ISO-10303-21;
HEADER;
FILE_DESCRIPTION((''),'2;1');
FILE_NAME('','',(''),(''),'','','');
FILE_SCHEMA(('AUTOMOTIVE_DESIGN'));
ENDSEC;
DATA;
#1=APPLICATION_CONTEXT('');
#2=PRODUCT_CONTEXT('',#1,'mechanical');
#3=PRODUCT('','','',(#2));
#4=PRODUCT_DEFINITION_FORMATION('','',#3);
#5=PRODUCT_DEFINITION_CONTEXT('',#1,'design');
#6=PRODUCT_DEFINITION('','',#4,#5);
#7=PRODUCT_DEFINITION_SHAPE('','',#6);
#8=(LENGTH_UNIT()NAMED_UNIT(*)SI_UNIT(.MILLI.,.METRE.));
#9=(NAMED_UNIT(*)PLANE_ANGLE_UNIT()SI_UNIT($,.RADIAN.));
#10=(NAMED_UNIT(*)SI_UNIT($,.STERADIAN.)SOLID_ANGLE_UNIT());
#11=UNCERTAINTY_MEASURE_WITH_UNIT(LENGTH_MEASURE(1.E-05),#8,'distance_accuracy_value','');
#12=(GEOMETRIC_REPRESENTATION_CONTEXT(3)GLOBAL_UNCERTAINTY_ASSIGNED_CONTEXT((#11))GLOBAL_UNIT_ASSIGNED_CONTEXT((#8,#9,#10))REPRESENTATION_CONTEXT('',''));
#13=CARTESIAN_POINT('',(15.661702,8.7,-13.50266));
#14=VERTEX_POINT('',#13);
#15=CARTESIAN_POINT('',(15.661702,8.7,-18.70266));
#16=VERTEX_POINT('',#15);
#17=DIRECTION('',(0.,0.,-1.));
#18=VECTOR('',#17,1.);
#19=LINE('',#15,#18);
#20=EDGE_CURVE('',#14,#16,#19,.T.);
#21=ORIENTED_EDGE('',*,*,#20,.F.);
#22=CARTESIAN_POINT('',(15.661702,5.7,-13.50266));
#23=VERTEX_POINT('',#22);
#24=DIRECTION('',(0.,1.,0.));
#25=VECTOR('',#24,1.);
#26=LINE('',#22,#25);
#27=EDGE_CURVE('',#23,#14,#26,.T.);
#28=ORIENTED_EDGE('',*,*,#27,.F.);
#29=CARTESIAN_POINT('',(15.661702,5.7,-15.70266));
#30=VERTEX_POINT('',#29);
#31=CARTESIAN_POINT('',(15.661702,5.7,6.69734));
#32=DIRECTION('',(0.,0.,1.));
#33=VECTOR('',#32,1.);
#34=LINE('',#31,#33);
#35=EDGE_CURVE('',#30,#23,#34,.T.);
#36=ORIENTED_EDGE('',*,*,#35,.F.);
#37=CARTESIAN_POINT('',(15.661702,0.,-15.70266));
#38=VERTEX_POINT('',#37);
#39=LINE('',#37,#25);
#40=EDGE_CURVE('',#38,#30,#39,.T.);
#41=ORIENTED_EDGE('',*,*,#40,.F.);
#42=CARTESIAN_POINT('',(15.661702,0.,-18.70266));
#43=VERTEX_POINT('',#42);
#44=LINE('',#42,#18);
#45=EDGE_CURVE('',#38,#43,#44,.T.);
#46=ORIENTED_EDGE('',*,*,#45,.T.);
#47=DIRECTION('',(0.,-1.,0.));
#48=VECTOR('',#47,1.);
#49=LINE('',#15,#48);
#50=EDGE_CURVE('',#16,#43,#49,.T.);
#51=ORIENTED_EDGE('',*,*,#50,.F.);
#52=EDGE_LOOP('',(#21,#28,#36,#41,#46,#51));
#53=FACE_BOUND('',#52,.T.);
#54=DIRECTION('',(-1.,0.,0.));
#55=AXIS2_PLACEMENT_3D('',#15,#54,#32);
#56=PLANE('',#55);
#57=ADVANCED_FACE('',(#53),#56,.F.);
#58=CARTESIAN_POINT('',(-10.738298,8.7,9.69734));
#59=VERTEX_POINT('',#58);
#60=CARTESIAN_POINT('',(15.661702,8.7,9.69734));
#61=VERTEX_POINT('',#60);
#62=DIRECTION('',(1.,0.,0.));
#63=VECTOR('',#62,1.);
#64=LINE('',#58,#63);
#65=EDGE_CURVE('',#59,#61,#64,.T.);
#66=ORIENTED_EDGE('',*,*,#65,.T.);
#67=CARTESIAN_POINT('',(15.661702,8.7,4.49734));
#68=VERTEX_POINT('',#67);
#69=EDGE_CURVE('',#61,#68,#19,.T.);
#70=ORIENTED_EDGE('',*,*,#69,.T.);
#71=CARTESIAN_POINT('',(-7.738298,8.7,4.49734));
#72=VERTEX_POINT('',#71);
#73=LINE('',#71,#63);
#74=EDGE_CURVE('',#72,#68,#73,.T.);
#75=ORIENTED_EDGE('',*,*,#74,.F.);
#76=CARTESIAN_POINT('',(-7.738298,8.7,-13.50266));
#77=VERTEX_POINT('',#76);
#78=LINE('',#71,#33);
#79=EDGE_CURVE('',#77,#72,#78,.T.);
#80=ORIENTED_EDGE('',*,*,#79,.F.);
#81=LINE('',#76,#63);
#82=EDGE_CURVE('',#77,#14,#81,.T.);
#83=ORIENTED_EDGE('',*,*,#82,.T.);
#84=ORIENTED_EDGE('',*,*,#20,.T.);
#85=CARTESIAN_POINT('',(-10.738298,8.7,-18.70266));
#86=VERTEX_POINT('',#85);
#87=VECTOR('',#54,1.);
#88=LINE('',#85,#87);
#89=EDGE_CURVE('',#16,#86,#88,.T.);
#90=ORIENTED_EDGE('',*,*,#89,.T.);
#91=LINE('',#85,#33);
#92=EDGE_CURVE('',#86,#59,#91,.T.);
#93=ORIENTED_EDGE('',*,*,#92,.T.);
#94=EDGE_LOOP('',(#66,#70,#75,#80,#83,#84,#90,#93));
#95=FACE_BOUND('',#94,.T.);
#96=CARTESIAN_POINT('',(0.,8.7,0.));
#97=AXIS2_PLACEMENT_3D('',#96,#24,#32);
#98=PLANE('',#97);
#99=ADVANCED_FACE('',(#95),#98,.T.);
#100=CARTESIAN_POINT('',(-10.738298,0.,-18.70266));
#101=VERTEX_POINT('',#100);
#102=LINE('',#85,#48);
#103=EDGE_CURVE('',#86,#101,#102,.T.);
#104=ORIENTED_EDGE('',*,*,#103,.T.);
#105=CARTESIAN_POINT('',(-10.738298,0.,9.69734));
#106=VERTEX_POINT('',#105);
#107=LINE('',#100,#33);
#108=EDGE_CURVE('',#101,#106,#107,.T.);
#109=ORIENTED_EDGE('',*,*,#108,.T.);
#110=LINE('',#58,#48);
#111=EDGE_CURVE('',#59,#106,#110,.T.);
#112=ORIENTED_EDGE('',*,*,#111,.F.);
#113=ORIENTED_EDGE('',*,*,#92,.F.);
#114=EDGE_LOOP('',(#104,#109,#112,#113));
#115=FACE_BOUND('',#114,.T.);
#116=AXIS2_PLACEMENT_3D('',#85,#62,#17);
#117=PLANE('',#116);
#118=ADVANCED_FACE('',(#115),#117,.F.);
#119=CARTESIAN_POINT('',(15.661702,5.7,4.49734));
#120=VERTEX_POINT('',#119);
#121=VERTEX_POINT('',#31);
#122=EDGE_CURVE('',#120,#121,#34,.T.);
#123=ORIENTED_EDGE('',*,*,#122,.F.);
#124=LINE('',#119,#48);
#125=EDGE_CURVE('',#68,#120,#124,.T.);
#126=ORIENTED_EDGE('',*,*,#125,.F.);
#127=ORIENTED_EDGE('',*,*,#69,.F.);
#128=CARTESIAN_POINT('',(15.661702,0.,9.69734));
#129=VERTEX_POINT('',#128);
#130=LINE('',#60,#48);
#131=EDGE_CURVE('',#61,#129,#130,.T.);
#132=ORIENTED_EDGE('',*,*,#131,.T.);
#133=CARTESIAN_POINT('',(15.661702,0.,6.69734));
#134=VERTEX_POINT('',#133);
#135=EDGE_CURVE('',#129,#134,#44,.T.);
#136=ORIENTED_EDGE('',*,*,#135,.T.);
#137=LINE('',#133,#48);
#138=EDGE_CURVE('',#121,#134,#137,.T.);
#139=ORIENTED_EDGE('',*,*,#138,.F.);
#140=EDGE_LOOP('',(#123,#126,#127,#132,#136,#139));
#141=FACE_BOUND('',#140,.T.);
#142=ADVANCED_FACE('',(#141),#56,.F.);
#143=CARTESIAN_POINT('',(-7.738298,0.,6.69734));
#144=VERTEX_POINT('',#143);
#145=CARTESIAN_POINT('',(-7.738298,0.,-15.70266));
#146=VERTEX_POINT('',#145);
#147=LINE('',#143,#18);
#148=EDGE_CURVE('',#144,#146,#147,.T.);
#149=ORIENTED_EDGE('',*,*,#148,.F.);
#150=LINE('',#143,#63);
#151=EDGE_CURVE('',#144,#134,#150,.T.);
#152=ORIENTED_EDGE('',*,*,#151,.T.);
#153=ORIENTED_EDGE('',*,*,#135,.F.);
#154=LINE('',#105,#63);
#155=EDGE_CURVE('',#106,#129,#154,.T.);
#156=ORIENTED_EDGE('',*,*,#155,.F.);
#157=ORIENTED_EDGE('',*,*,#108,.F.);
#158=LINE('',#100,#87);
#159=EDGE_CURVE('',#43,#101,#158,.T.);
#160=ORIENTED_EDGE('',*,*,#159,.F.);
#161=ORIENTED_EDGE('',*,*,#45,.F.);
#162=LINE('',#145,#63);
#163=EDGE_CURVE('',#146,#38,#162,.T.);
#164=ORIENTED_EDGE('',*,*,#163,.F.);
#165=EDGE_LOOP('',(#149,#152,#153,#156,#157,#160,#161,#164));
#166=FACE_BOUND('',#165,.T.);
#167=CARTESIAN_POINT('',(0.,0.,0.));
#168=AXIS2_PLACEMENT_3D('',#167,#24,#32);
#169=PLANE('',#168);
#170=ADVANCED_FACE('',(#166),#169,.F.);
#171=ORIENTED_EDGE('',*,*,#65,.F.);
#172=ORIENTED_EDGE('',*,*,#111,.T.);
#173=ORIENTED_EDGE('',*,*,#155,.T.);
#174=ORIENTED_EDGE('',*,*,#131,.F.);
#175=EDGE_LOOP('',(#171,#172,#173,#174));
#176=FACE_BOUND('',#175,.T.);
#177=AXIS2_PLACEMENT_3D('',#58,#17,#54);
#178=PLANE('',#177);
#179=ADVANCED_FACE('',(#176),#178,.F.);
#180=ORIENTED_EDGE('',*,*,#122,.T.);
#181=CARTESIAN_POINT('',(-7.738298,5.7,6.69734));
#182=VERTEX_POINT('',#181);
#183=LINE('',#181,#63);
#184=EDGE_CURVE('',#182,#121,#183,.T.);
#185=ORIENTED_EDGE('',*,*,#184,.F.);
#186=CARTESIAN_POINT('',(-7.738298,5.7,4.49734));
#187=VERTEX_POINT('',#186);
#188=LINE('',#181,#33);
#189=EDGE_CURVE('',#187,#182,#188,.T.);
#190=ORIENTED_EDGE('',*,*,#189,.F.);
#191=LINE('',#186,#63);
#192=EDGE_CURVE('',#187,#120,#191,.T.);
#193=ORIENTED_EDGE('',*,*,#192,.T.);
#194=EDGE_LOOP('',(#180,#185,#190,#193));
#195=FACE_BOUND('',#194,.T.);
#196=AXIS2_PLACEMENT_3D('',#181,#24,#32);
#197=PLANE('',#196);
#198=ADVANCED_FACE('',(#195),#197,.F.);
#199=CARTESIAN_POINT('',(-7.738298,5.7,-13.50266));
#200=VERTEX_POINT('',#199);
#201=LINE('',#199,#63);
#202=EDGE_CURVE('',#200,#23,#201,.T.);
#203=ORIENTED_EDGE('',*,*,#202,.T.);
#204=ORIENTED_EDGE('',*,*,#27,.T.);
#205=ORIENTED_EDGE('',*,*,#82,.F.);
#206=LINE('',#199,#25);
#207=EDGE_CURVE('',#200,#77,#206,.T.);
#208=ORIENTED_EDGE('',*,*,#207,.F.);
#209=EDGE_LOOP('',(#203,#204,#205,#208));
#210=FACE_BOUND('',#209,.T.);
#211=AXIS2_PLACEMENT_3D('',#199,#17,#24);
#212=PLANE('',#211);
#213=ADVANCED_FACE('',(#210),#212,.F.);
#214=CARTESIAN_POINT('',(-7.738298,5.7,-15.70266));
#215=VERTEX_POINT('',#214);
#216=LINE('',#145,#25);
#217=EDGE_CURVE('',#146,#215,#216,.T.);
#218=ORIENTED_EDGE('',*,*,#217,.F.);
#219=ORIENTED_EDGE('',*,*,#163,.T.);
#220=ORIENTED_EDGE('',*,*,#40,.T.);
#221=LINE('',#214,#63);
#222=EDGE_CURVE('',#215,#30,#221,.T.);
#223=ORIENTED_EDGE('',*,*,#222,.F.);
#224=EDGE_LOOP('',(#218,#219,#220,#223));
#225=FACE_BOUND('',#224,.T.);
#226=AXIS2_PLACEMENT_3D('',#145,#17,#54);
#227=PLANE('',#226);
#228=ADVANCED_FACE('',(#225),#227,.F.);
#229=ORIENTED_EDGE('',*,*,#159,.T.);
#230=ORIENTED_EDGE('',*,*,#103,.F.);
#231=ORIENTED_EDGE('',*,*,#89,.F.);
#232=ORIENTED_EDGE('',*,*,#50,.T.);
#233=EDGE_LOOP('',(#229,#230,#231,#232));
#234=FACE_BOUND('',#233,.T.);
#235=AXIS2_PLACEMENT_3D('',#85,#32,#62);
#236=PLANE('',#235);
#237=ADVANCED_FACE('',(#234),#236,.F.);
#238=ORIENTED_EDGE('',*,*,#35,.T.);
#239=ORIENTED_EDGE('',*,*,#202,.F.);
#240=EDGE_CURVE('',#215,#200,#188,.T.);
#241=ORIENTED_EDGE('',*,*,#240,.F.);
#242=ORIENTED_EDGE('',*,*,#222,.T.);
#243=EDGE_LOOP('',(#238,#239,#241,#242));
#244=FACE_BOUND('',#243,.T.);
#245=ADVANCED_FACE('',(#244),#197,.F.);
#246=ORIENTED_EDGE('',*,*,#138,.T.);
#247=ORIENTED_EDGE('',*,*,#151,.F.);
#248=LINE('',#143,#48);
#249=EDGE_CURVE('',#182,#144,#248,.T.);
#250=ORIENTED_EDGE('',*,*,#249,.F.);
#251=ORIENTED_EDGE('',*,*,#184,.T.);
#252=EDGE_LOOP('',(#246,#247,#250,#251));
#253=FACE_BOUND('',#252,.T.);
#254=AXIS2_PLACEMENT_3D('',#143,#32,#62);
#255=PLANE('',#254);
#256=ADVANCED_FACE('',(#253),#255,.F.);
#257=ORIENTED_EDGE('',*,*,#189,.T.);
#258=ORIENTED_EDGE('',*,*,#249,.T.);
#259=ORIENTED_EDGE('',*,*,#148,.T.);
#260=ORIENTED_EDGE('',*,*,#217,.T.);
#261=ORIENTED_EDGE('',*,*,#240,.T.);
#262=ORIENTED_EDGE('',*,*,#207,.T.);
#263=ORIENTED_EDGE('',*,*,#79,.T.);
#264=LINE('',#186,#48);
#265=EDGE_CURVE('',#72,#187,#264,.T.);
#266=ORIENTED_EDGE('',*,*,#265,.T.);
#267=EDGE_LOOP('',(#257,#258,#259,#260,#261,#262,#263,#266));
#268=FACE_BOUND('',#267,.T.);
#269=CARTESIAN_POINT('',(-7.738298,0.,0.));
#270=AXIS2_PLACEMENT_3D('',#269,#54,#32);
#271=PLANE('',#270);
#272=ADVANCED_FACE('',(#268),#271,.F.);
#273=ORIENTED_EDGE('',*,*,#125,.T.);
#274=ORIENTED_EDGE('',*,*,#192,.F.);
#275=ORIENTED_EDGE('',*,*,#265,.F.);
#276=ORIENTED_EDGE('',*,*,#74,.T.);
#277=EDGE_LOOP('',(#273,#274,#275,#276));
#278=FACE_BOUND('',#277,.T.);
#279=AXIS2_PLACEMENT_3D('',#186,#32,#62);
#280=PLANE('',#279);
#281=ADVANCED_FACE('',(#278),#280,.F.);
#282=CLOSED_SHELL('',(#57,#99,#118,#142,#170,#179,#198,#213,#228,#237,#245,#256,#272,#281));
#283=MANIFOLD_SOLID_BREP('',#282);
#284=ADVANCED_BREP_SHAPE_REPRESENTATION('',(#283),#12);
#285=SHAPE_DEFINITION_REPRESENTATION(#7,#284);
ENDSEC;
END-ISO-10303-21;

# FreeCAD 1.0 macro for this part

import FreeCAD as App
import Part
import Sketcher

V = App.Vector

doc = App.newDocument("Part")
params = doc.addObject("Spreadsheet::Sheet", "Params")
for row, (alias, value) in enumerate([
    ("sketch1_width", "26.4 mm"),
    ("sketch1_height", "28.4 mm"),
    ("pad1_length", "8.7 mm"),
    ("sketch2_width", "5.7 mm"),
    ("sketch2_height", "22.4 mm"),
    ("pocket1_length", "23.4 mm"),
    ("sketch3_width", "3 mm"),
    ("sketch3_height", "18 mm"),
    ("pocket2_length", "23.4 mm"),
], start=1):
    params.set(f"A{row}", alias)
    params.set(f"B{row}", "=" + value)
    params.setAlias(f"B{row}", alias)

body = doc.addObject("PartDesign::Body", "Body")

sketch1 = doc.addObject("Sketcher::SketchObject", "Sketch")
body.addObject(sketch1)
sketch1.AttachmentSupport = (doc.XZ_Plane, [""])
sketch1.MapMode = "FlatFace"
sketch1.addGeometry([
    Part.LineSegment(V(-11, -19, 0), V(-11, 10, 0)),
    Part.LineSegment(V(-11, 10, 0), V(16, 10, 0)),
    Part.LineSegment(V(16, 10, 0), V(16, -19, 0)),
    Part.LineSegment(V(16, -19, 0), V(-11, -19, 0)),
], False)
sketch1.addConstraint([
    Sketcher.Constraint("Coincident", 0, 2, 1, 1),
    Sketcher.Constraint("Coincident", 1, 2, 2, 1),
    Sketcher.Constraint("Coincident", 2, 2, 3, 1),
    Sketcher.Constraint("Coincident", 3, 2, 0, 1),
    Sketcher.Constraint("Vertical", 0),
    Sketcher.Constraint("Horizontal", 1),
    Sketcher.Constraint("Vertical", 2),
    Sketcher.Constraint("Horizontal", 3),
    Sketcher.Constraint("DistanceX", 1, 1, 1, 2, 26.4),
    Sketcher.Constraint("DistanceY", 0, 1, 0, 2, 28.4),
    Sketcher.Constraint("DistanceY", -1, 1, 0, 2, 9.69734),
    Sketcher.Constraint("DistanceX", 0, 2, -1, 1, 10.738298),
])
sketch1.setExpression("Constraints[8]", "Params.sketch1_width")
sketch1.setExpression("Constraints[9]", "Params.sketch1_height")
pad1 = doc.addObject("PartDesign::Pad", "Pad")
body.addObject(pad1)
pad1.Profile = sketch1
pad1.setExpression("Length", "Params.pad1_length")
pad1.Reversed = True

sketch2 = doc.addObject("Sketcher::SketchObject", "Sketch001")
body.addObject(sketch2)
sketch2.AttachmentSupport = (doc.YZ_Plane, [""])
sketch2.MapMode = "FlatFace"
sketch2.AttachmentOffset = App.Placement(V(0, 0, 15.661702), App.Rotation())
sketch2.addGeometry([
    Part.LineSegment(V(6, 7, 0), V(0, 7, 0)),
    Part.LineSegment(V(0, 7, 0), V(0, -16, 0)),
    Part.LineSegment(V(0, -16, 0), V(6, -16, 0)),
    Part.LineSegment(V(6, -16, 0), V(6, 7, 0)),
], False)
sketch2.addConstraint([
    Sketcher.Constraint("Coincident", 0, 2, 1, 1),
    Sketcher.Constraint("Coincident", 1, 2, 2, 1),
    Sketcher.Constraint("Coincident", 2, 2, 3, 1),
    Sketcher.Constraint("Coincident", 3, 2, 0, 1),
    Sketcher.Constraint("Horizontal", 0),
    Sketcher.Constraint("Vertical", 1),
    Sketcher.Constraint("Horizontal", 2),
    Sketcher.Constraint("Vertical", 3),
    Sketcher.Constraint("PointOnObject", 0, 2, -2),
    Sketcher.Constraint("DistanceX", 0, 2, 0, 1, 5.7),
    Sketcher.Constraint("DistanceY", 1, 2, 1, 1, 22.4),
    Sketcher.Constraint("DistanceY", -1, 1, 0, 2, 6.69734),
])
sketch2.setExpression("Constraints[9]", "Params.sketch2_width")
sketch2.setExpression("Constraints[10]", "Params.sketch2_height")
pocket1 = doc.addObject("PartDesign::Pocket", "Pocket")
body.addObject(pocket1)
pocket1.Profile = sketch2
pocket1.setExpression("Length", "Params.pocket1_length")

sketch3 = doc.addObject("Sketcher::SketchObject", "Sketch002")
body.addObject(sketch3)
sketch3.AttachmentSupport = (doc.YZ_Plane, [""])
sketch3.MapMode = "FlatFace"
sketch3.AttachmentOffset = App.Placement(V(0, 0, 15.661702), App.Rotation())
sketch3.addGeometry([
    Part.LineSegment(V(8.7, 4.5, 0), V(5.7, 4.5, 0)),
    Part.LineSegment(V(5.7, 4.5, 0), V(5.7, -13.5, 0)),
    Part.LineSegment(V(5.7, -13.5, 0), V(8.7, -13.5, 0)),
    Part.LineSegment(V(8.7, -13.5, 0), V(8.7, 4.5, 0)),
], False)
sketch3.addConstraint([
    Sketcher.Constraint("Coincident", 0, 2, 1, 1),
    Sketcher.Constraint("Coincident", 1, 2, 2, 1),
    Sketcher.Constraint("Coincident", 2, 2, 3, 1),
    Sketcher.Constraint("Coincident", 3, 2, 0, 1),
    Sketcher.Constraint("Horizontal", 0),
    Sketcher.Constraint("Vertical", 1),
    Sketcher.Constraint("Horizontal", 2),
    Sketcher.Constraint("Vertical", 3),
    Sketcher.Constraint("DistanceX", 0, 2, 0, 1, 3.0),
    Sketcher.Constraint("DistanceY", 1, 2, 1, 1, 18.0),
    Sketcher.Constraint("DistanceX", -1, 1, 0, 2, 5.7),
    Sketcher.Constraint("DistanceY", -1, 1, 0, 2, 4.49734),
])
sketch3.setExpression("Constraints[8]", "Params.sketch3_width")
sketch3.setExpression("Constraints[9]", "Params.sketch3_height")
pocket2 = doc.addObject("PartDesign::Pocket", "Pocket001")
body.addObject(pocket2)
pocket2.Profile = sketch3
pocket2.setExpression("Length", "Params.pocket2_length")

doc.recompute()
